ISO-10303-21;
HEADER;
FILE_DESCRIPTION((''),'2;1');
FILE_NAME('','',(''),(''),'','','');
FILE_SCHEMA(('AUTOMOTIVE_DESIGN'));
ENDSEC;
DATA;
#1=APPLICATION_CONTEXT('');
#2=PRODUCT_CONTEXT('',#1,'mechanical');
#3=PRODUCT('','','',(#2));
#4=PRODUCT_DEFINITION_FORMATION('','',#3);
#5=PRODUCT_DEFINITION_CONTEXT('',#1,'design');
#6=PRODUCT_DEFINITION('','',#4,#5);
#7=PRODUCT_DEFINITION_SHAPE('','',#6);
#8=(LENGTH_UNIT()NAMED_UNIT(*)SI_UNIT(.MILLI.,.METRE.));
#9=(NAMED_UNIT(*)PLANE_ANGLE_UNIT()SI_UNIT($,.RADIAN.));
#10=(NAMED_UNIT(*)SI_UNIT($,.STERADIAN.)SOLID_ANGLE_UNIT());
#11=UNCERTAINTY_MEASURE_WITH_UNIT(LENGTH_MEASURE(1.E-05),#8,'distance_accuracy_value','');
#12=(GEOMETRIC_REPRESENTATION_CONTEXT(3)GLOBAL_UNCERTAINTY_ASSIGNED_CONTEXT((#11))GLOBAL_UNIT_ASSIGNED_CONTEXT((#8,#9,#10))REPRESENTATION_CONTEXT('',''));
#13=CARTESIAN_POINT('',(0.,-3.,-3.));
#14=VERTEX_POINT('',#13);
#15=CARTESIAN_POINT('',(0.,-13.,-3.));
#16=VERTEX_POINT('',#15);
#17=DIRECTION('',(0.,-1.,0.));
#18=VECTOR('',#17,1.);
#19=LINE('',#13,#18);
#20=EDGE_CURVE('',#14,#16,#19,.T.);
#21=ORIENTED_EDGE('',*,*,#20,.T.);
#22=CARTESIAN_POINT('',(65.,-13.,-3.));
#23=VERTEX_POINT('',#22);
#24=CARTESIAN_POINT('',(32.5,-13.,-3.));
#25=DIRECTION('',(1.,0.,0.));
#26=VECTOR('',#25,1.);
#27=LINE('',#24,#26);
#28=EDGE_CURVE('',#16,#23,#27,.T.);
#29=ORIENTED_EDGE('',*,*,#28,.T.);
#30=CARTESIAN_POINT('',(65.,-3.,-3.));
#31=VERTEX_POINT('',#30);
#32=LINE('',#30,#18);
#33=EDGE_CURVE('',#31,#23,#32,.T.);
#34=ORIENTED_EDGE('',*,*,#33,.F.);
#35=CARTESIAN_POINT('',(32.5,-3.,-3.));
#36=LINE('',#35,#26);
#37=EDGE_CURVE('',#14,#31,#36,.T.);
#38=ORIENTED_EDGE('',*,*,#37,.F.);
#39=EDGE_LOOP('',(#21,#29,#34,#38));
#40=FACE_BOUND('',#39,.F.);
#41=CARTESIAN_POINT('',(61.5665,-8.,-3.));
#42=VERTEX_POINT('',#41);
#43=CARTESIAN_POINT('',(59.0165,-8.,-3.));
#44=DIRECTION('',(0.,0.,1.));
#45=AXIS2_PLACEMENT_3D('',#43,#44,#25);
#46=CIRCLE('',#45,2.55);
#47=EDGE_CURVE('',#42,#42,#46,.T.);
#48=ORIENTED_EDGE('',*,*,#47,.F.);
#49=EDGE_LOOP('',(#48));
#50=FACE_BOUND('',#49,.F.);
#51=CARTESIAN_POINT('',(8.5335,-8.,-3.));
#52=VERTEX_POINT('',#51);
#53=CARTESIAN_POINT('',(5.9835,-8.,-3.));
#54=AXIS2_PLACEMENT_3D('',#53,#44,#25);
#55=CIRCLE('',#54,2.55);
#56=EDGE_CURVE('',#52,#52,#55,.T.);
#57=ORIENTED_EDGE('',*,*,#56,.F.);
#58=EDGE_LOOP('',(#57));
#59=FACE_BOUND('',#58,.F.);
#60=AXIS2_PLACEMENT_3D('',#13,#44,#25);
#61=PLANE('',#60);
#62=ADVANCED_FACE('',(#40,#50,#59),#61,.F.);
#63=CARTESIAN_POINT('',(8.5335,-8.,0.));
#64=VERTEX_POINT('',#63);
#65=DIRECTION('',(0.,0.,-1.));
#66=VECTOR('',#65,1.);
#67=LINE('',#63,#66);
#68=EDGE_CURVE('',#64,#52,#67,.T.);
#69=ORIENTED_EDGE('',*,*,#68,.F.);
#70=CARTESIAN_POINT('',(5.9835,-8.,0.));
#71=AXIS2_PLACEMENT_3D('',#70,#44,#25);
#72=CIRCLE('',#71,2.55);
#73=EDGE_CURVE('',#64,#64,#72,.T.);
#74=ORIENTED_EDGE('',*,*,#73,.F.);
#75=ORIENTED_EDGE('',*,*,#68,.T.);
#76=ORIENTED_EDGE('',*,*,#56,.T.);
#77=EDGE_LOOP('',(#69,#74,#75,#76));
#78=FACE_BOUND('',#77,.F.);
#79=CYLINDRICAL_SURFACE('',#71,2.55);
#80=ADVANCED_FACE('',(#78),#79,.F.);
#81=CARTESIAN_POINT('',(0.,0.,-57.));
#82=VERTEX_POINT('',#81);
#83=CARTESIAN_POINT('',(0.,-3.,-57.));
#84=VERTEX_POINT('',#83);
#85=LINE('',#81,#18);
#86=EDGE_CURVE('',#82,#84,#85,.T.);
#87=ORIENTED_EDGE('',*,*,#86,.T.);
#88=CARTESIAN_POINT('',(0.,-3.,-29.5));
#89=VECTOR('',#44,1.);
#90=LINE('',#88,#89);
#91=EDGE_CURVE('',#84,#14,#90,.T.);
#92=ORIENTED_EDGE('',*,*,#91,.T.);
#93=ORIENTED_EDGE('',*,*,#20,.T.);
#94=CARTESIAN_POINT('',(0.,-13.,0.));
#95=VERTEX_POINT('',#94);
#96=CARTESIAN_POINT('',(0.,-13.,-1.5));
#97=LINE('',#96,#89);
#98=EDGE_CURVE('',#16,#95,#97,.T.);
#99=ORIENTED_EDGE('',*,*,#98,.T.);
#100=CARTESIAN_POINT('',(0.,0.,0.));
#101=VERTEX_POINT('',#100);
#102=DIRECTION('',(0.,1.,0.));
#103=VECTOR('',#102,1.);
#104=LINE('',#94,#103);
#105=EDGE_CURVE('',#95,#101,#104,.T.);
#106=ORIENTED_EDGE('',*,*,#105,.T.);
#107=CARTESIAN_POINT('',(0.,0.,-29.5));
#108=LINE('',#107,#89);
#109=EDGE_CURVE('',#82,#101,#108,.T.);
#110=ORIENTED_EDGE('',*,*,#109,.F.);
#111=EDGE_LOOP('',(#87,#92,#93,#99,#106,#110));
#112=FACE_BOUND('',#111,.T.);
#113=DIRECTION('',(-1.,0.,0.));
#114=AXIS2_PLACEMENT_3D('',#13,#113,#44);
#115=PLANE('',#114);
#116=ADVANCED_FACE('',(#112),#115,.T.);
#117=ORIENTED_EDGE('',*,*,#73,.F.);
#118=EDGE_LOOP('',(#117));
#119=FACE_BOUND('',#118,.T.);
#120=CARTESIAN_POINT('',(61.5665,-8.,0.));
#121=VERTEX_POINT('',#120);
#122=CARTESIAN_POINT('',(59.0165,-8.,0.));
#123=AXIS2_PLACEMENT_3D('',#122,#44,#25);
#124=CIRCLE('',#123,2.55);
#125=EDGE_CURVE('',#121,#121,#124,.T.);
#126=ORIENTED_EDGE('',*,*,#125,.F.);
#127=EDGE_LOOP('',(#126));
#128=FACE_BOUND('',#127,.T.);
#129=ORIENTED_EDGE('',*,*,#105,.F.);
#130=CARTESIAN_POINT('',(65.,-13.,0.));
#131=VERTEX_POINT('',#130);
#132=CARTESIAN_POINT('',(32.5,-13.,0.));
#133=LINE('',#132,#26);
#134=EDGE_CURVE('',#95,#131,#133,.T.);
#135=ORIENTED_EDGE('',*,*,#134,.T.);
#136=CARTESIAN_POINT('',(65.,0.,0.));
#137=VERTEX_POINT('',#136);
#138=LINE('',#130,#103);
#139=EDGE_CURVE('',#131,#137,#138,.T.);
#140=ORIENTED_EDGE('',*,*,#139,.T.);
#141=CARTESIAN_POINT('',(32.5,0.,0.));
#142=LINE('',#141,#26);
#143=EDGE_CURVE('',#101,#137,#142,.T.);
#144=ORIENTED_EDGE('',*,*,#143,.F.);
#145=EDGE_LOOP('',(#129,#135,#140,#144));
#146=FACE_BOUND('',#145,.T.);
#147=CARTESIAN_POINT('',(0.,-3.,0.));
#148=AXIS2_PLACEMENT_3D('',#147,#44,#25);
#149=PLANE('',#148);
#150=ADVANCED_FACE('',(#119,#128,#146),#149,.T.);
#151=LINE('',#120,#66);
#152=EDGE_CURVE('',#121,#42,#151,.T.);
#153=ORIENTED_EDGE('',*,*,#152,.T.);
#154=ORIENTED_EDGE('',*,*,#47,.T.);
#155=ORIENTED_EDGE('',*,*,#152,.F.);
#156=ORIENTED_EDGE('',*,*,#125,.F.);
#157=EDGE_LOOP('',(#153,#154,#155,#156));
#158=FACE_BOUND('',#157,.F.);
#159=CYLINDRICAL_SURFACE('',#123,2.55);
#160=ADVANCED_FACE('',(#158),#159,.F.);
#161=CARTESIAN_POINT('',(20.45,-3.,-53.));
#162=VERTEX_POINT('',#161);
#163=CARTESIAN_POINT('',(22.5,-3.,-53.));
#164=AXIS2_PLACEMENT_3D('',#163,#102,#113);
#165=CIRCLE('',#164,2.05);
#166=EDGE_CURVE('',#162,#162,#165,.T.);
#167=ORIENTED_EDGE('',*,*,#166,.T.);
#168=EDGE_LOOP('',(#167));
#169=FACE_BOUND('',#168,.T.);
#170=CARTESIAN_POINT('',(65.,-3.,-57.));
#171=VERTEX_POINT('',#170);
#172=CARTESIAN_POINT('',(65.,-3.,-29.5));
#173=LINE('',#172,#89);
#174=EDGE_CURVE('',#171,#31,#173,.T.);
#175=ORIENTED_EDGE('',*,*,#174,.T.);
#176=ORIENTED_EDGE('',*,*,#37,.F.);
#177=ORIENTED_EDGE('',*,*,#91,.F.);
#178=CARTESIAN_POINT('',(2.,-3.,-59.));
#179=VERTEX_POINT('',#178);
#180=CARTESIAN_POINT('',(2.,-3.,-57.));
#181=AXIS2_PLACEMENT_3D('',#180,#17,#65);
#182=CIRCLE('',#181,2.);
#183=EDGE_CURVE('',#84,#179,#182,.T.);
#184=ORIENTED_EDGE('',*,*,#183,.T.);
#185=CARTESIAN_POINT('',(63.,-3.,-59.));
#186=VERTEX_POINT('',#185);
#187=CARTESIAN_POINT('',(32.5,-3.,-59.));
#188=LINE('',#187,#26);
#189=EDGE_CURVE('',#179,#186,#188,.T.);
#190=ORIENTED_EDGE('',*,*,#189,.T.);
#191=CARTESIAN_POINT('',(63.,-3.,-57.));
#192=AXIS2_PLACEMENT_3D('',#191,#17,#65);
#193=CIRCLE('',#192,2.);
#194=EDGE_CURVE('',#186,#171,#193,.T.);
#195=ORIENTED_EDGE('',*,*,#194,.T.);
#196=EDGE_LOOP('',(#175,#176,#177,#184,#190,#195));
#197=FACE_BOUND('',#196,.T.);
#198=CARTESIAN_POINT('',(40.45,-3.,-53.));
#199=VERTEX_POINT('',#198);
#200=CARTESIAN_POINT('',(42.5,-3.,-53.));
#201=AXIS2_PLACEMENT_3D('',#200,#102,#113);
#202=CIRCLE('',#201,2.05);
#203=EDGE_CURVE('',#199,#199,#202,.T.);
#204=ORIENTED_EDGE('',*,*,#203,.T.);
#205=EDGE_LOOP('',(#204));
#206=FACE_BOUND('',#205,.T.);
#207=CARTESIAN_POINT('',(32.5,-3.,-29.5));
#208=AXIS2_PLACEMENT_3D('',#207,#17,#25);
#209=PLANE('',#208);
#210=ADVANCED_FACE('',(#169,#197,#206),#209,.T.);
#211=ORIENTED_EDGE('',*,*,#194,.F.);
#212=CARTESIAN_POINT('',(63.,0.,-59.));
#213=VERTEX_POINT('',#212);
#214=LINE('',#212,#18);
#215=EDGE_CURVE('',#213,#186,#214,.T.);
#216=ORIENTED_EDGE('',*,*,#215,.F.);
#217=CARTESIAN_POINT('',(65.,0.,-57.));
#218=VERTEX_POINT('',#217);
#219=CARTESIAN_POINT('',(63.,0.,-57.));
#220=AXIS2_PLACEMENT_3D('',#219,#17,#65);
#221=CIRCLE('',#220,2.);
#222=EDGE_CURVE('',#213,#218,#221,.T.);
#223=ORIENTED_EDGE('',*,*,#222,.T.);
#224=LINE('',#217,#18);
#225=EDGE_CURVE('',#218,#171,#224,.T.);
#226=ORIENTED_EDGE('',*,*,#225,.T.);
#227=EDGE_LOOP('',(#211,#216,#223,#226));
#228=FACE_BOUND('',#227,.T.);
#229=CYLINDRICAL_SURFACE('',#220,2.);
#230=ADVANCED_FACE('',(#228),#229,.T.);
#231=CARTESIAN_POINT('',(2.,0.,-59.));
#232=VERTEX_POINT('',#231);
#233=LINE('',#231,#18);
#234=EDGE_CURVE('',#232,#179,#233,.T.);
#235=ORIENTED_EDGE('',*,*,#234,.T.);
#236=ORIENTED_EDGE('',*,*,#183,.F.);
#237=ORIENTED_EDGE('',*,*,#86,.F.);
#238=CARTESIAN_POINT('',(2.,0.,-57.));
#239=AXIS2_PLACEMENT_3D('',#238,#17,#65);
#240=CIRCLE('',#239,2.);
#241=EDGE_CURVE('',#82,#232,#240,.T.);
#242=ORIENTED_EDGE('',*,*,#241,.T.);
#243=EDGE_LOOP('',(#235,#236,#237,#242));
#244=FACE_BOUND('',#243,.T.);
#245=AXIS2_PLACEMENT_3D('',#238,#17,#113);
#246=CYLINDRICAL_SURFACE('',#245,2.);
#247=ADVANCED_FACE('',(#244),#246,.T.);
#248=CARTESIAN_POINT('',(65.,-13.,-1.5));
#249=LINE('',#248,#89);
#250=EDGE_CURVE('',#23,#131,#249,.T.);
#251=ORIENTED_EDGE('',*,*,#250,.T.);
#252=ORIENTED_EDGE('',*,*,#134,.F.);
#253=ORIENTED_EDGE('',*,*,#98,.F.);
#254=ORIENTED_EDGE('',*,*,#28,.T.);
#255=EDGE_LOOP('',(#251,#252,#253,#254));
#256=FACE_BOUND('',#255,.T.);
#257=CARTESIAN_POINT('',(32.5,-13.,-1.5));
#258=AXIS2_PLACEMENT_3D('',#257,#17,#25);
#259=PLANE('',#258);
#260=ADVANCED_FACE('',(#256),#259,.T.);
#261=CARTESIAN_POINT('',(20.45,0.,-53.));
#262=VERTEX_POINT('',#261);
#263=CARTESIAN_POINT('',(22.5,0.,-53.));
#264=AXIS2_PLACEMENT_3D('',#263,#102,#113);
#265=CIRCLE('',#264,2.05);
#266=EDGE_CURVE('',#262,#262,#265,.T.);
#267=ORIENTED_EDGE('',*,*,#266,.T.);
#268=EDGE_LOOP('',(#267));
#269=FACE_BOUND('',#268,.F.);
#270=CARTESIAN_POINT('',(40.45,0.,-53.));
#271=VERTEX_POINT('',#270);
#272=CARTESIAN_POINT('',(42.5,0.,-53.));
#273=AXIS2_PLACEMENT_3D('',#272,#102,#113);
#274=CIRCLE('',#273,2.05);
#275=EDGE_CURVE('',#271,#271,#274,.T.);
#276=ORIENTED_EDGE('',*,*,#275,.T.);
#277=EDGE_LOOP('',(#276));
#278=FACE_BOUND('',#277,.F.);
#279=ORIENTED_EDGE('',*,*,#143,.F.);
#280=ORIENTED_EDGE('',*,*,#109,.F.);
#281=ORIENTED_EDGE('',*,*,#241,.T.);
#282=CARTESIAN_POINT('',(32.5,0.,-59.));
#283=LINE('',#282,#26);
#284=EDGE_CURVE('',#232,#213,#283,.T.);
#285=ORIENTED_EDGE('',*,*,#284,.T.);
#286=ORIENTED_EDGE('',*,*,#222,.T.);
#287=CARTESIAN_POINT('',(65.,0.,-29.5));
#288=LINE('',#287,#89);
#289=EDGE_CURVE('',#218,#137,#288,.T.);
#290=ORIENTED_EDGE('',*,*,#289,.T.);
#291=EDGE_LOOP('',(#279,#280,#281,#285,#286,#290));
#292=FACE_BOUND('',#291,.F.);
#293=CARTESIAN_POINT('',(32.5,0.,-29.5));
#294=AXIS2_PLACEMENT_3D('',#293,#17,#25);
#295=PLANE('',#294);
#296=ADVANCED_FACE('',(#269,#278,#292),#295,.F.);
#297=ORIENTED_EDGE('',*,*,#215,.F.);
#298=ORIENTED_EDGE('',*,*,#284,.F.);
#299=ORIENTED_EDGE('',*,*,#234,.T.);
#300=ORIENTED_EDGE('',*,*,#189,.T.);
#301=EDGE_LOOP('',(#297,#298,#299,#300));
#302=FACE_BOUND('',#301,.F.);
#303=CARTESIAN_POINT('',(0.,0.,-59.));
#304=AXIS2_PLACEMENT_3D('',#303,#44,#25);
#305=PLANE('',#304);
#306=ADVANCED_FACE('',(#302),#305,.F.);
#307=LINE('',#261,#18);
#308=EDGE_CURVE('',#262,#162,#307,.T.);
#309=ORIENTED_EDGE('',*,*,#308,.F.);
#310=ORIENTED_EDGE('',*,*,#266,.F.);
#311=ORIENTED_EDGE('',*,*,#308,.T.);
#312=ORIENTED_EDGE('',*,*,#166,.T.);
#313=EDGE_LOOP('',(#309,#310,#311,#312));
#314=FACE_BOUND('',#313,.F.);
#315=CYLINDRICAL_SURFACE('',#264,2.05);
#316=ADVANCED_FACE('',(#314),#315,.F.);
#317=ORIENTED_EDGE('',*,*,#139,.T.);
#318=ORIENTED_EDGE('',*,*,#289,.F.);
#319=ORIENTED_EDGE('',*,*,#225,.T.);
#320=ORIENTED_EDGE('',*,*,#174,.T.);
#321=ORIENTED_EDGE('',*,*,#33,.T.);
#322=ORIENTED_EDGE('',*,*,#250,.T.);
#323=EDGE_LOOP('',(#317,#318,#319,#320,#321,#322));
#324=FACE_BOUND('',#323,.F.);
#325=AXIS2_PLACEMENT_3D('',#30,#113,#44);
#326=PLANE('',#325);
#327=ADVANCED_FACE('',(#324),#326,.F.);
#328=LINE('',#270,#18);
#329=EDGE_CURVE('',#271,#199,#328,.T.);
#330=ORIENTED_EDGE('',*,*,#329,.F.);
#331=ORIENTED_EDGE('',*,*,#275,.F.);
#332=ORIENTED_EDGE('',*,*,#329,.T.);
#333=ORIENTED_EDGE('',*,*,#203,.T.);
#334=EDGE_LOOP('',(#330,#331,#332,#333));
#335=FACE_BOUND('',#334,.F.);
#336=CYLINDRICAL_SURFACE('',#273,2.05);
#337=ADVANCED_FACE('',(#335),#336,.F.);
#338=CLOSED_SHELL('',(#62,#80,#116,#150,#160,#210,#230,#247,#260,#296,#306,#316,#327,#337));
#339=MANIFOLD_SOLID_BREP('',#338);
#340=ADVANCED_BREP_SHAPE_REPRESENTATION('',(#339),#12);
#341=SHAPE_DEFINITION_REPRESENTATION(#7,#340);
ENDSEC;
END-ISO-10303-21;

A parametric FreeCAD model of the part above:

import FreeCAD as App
import Part
import Sketcher

V = App.Vector


def edges_at(feature, points):
    """Names of the edges that pass closest to the given points."""
    edges = feature.Shape.Edges
    near = lambda p: min(range(len(edges)), key=lambda i: edges[i].distToShape(Part.Vertex(*p))[0])
    return sorted({f"Edge{near(p) + 1}" for p in points})


def add_polygon(sketch, points):
    """Adds a closed chain of lines whose ends are joined by coincident constraints."""
    first, n = sketch.GeometryCount, len(points)
    for a, b in zip(points, points[1:] + points[:1]):
        sketch.addGeometry(Part.LineSegment(App.Vector(*a, 0), App.Vector(*b, 0)), False)
    for i in range(n):
        sketch.addConstraint(Sketcher.Constraint("Coincident", first + i, 2, first + (i + 1) % n, 1))

doc = App.newDocument("Part")
body = doc.addObject("PartDesign::Body", "Body")

sketch1 = body.newObject("Sketcher::SketchObject", "Sketch")
sketch1.AttachmentSupport = (doc.getObject("XZ_Plane"), [""])
sketch1.MapMode = "FlatFace"
add_polygon(sketch1, [(0, 0), (0, -59), (65, -59), (65, 0)])
sketch1.addConstraint([
    Sketcher.Constraint("Vertical", 0),
    Sketcher.Constraint("Horizontal", 1),
    Sketcher.Constraint("Vertical", 2),
    Sketcher.Constraint("Horizontal", 3),
    Sketcher.Constraint("Coincident", 3, 2, -1, 1),
    Sketcher.Constraint("DistanceX", 1, 1, 1, 2, 65.0),
    Sketcher.Constraint("DistanceY", 0, 2, 0, 1, 59.0),
])
pad1 = body.newObject("PartDesign::Pad", "Pad")
pad1.Profile = sketch1
pad1.Length = 3

sketch2 = body.newObject("Sketcher::SketchObject", "Sketch001")
sketch2.AttachmentSupport = (doc.getObject("XZ_Plane"), [""])
sketch2.MapMode = "FlatFace"
sketch2.AttachmentOffset = App.Placement(V(0, 0, 3), App.Rotation())
add_polygon(sketch2, [(0, 0), (0, -3), (65, -3), (65, 0)])
sketch2.addConstraint([
    Sketcher.Constraint("Vertical", 0),
    Sketcher.Constraint("Horizontal", 1),
    Sketcher.Constraint("Vertical", 2),
    Sketcher.Constraint("Horizontal", 3),
    Sketcher.Constraint("Coincident", 3, 2, -1, 1),
    Sketcher.Constraint("DistanceX", 1, 1, 1, 2, 65.0),
    Sketcher.Constraint("DistanceY", 0, 2, 0, 1, 3.0),
])
pad2 = body.newObject("PartDesign::Pad", "Pad001")
pad2.Profile = sketch2
pad2.Length = 10

sketch3 = body.newObject("Sketcher::SketchObject", "Sketch002")
sketch3.AttachmentSupport = (doc.getObject("XY_Plane"), [""])
sketch3.MapMode = "FlatFace"
sketch3.addGeometry([
    Part.Circle(V(59.0165, -8, 0), V(0, 0, 1), 2.55),
    Part.Circle(V(5.9835, -8, 0), V(0, 0, 1), 2.55),
], False)
sketch3.addConstraint([
    Sketcher.Constraint("Equal", 0, 1),
    Sketcher.Constraint("Horizontal", 0, 3, 1, 3),
    Sketcher.Constraint("Diameter", 0, 5.1),
    Sketcher.Constraint("DistanceY", 0, 3, -1, 1, 8.0),
    Sketcher.Constraint("DistanceX", 1, 3, 0, 3, 53.033),
    Sketcher.Constraint("DistanceX", -1, 1, 0, 3, 59.0165),
])
pocket1 = body.newObject("PartDesign::Pocket", "Pocket")
pocket1.Profile = sketch3
pocket1.Length = 25

sketch4 = body.newObject("Sketcher::SketchObject", "Sketch003")
sketch4.AttachmentSupport = (doc.getObject("XZ_Plane"), [""])
sketch4.MapMode = "FlatFace"
sketch4.addGeometry([
    Part.Circle(V(42.5, -53, 0), V(0, 0, 1), 2.05),
    Part.Circle(V(22.5, -53, 0), V(0, 0, 1), 2.05),
], False)
sketch4.addConstraint([
    Sketcher.Constraint("Equal", 0, 1),
    Sketcher.Constraint("Horizontal", 0, 3, 1, 3),
    Sketcher.Constraint("Diameter", 0, 4.1),
    Sketcher.Constraint("DistanceY", 0, 3, -1, 1, 53.0),
    Sketcher.Constraint("DistanceX", 1, 3, 0, 3, 20.0),
    Sketcher.Constraint("DistanceX", -1, 1, 0, 3, 42.5),
])
pocket2 = body.newObject("PartDesign::Pocket", "Pocket001")
pocket2.Profile = sketch4
pocket2.Length = 25
pocket2.Reversed = True
doc.recompute()

fillet = body.newObject("PartDesign::Fillet", "Fillet")
fillet.Base = (pocket2, edges_at(pocket2, [(65, -1.5, -59), (0, -1.5, -59)]))
fillet.Radius = 2

doc.recompute()
